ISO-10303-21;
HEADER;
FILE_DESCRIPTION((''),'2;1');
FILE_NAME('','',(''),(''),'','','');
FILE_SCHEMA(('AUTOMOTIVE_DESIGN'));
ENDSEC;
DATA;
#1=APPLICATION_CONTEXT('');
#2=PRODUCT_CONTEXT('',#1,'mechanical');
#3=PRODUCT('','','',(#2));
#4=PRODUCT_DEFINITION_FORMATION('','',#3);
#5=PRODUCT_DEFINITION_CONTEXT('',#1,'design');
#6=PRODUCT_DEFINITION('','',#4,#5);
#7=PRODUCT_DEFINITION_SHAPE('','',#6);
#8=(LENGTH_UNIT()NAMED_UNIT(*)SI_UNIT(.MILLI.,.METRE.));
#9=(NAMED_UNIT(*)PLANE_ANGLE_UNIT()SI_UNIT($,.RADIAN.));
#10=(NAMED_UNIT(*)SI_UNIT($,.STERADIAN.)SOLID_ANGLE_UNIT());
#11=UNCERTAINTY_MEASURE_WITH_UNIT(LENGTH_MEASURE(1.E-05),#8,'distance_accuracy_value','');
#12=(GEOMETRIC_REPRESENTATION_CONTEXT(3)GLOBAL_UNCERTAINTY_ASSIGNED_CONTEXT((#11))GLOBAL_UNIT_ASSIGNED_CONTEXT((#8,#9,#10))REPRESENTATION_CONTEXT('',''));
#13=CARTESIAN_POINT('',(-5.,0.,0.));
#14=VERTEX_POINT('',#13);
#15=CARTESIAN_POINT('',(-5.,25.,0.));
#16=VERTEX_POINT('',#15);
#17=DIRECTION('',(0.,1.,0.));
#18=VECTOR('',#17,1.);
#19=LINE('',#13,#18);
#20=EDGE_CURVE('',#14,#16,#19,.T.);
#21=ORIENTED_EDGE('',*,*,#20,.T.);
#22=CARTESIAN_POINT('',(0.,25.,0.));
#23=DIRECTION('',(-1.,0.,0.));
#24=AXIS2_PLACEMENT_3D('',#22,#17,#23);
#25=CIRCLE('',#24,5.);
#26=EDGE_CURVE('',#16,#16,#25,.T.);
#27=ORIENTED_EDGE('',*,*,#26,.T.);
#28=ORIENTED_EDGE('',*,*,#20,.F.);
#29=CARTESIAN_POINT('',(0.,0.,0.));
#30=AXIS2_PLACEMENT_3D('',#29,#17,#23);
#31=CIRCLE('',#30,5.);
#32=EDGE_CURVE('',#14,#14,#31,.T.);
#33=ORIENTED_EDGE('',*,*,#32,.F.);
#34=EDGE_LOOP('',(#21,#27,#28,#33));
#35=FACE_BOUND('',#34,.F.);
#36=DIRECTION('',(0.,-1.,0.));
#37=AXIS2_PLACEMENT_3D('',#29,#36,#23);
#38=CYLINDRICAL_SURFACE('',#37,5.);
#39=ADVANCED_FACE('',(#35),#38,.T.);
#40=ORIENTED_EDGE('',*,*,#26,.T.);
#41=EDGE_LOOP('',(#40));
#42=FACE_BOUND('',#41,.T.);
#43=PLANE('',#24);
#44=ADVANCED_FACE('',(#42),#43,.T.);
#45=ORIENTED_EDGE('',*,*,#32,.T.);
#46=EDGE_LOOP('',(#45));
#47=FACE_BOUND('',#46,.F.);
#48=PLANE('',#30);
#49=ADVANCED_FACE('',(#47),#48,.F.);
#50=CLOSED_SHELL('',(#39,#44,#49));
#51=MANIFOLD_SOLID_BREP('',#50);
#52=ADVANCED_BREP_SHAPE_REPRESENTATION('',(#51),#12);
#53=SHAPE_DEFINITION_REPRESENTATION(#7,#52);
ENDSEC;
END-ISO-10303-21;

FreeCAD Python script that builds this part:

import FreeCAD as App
import Part
import Sketcher

V = App.Vector
Q = App.Units.Quantity

doc = App.newDocument("Part")
body = doc.addObject("PartDesign::Body", "Body")

# Sketch on XZ plane
sketch1 = body.newObject("Sketcher::SketchObject", "Sketch")
sketch1.AttachmentSupport = (doc.getObject("XZ_Plane"), [""])
sketch1.MapMode = "FlatFace"
sketch1.addGeometry(Part.Circle(V(0, 0, 0), V(0, 0, 1), 5), False)
sketch1.addConstraint([
    Sketcher.Constraint("Coincident", 0, 3, -1, 1),
    Sketcher.Constraint("Diameter", 0, Q("10 mm")),
])
pad1 = body.newObject("PartDesign::Pad", "Pad")
pad1.Profile = sketch1
pad1.Length = 25
pad1.Reversed = True

doc.recompute()
